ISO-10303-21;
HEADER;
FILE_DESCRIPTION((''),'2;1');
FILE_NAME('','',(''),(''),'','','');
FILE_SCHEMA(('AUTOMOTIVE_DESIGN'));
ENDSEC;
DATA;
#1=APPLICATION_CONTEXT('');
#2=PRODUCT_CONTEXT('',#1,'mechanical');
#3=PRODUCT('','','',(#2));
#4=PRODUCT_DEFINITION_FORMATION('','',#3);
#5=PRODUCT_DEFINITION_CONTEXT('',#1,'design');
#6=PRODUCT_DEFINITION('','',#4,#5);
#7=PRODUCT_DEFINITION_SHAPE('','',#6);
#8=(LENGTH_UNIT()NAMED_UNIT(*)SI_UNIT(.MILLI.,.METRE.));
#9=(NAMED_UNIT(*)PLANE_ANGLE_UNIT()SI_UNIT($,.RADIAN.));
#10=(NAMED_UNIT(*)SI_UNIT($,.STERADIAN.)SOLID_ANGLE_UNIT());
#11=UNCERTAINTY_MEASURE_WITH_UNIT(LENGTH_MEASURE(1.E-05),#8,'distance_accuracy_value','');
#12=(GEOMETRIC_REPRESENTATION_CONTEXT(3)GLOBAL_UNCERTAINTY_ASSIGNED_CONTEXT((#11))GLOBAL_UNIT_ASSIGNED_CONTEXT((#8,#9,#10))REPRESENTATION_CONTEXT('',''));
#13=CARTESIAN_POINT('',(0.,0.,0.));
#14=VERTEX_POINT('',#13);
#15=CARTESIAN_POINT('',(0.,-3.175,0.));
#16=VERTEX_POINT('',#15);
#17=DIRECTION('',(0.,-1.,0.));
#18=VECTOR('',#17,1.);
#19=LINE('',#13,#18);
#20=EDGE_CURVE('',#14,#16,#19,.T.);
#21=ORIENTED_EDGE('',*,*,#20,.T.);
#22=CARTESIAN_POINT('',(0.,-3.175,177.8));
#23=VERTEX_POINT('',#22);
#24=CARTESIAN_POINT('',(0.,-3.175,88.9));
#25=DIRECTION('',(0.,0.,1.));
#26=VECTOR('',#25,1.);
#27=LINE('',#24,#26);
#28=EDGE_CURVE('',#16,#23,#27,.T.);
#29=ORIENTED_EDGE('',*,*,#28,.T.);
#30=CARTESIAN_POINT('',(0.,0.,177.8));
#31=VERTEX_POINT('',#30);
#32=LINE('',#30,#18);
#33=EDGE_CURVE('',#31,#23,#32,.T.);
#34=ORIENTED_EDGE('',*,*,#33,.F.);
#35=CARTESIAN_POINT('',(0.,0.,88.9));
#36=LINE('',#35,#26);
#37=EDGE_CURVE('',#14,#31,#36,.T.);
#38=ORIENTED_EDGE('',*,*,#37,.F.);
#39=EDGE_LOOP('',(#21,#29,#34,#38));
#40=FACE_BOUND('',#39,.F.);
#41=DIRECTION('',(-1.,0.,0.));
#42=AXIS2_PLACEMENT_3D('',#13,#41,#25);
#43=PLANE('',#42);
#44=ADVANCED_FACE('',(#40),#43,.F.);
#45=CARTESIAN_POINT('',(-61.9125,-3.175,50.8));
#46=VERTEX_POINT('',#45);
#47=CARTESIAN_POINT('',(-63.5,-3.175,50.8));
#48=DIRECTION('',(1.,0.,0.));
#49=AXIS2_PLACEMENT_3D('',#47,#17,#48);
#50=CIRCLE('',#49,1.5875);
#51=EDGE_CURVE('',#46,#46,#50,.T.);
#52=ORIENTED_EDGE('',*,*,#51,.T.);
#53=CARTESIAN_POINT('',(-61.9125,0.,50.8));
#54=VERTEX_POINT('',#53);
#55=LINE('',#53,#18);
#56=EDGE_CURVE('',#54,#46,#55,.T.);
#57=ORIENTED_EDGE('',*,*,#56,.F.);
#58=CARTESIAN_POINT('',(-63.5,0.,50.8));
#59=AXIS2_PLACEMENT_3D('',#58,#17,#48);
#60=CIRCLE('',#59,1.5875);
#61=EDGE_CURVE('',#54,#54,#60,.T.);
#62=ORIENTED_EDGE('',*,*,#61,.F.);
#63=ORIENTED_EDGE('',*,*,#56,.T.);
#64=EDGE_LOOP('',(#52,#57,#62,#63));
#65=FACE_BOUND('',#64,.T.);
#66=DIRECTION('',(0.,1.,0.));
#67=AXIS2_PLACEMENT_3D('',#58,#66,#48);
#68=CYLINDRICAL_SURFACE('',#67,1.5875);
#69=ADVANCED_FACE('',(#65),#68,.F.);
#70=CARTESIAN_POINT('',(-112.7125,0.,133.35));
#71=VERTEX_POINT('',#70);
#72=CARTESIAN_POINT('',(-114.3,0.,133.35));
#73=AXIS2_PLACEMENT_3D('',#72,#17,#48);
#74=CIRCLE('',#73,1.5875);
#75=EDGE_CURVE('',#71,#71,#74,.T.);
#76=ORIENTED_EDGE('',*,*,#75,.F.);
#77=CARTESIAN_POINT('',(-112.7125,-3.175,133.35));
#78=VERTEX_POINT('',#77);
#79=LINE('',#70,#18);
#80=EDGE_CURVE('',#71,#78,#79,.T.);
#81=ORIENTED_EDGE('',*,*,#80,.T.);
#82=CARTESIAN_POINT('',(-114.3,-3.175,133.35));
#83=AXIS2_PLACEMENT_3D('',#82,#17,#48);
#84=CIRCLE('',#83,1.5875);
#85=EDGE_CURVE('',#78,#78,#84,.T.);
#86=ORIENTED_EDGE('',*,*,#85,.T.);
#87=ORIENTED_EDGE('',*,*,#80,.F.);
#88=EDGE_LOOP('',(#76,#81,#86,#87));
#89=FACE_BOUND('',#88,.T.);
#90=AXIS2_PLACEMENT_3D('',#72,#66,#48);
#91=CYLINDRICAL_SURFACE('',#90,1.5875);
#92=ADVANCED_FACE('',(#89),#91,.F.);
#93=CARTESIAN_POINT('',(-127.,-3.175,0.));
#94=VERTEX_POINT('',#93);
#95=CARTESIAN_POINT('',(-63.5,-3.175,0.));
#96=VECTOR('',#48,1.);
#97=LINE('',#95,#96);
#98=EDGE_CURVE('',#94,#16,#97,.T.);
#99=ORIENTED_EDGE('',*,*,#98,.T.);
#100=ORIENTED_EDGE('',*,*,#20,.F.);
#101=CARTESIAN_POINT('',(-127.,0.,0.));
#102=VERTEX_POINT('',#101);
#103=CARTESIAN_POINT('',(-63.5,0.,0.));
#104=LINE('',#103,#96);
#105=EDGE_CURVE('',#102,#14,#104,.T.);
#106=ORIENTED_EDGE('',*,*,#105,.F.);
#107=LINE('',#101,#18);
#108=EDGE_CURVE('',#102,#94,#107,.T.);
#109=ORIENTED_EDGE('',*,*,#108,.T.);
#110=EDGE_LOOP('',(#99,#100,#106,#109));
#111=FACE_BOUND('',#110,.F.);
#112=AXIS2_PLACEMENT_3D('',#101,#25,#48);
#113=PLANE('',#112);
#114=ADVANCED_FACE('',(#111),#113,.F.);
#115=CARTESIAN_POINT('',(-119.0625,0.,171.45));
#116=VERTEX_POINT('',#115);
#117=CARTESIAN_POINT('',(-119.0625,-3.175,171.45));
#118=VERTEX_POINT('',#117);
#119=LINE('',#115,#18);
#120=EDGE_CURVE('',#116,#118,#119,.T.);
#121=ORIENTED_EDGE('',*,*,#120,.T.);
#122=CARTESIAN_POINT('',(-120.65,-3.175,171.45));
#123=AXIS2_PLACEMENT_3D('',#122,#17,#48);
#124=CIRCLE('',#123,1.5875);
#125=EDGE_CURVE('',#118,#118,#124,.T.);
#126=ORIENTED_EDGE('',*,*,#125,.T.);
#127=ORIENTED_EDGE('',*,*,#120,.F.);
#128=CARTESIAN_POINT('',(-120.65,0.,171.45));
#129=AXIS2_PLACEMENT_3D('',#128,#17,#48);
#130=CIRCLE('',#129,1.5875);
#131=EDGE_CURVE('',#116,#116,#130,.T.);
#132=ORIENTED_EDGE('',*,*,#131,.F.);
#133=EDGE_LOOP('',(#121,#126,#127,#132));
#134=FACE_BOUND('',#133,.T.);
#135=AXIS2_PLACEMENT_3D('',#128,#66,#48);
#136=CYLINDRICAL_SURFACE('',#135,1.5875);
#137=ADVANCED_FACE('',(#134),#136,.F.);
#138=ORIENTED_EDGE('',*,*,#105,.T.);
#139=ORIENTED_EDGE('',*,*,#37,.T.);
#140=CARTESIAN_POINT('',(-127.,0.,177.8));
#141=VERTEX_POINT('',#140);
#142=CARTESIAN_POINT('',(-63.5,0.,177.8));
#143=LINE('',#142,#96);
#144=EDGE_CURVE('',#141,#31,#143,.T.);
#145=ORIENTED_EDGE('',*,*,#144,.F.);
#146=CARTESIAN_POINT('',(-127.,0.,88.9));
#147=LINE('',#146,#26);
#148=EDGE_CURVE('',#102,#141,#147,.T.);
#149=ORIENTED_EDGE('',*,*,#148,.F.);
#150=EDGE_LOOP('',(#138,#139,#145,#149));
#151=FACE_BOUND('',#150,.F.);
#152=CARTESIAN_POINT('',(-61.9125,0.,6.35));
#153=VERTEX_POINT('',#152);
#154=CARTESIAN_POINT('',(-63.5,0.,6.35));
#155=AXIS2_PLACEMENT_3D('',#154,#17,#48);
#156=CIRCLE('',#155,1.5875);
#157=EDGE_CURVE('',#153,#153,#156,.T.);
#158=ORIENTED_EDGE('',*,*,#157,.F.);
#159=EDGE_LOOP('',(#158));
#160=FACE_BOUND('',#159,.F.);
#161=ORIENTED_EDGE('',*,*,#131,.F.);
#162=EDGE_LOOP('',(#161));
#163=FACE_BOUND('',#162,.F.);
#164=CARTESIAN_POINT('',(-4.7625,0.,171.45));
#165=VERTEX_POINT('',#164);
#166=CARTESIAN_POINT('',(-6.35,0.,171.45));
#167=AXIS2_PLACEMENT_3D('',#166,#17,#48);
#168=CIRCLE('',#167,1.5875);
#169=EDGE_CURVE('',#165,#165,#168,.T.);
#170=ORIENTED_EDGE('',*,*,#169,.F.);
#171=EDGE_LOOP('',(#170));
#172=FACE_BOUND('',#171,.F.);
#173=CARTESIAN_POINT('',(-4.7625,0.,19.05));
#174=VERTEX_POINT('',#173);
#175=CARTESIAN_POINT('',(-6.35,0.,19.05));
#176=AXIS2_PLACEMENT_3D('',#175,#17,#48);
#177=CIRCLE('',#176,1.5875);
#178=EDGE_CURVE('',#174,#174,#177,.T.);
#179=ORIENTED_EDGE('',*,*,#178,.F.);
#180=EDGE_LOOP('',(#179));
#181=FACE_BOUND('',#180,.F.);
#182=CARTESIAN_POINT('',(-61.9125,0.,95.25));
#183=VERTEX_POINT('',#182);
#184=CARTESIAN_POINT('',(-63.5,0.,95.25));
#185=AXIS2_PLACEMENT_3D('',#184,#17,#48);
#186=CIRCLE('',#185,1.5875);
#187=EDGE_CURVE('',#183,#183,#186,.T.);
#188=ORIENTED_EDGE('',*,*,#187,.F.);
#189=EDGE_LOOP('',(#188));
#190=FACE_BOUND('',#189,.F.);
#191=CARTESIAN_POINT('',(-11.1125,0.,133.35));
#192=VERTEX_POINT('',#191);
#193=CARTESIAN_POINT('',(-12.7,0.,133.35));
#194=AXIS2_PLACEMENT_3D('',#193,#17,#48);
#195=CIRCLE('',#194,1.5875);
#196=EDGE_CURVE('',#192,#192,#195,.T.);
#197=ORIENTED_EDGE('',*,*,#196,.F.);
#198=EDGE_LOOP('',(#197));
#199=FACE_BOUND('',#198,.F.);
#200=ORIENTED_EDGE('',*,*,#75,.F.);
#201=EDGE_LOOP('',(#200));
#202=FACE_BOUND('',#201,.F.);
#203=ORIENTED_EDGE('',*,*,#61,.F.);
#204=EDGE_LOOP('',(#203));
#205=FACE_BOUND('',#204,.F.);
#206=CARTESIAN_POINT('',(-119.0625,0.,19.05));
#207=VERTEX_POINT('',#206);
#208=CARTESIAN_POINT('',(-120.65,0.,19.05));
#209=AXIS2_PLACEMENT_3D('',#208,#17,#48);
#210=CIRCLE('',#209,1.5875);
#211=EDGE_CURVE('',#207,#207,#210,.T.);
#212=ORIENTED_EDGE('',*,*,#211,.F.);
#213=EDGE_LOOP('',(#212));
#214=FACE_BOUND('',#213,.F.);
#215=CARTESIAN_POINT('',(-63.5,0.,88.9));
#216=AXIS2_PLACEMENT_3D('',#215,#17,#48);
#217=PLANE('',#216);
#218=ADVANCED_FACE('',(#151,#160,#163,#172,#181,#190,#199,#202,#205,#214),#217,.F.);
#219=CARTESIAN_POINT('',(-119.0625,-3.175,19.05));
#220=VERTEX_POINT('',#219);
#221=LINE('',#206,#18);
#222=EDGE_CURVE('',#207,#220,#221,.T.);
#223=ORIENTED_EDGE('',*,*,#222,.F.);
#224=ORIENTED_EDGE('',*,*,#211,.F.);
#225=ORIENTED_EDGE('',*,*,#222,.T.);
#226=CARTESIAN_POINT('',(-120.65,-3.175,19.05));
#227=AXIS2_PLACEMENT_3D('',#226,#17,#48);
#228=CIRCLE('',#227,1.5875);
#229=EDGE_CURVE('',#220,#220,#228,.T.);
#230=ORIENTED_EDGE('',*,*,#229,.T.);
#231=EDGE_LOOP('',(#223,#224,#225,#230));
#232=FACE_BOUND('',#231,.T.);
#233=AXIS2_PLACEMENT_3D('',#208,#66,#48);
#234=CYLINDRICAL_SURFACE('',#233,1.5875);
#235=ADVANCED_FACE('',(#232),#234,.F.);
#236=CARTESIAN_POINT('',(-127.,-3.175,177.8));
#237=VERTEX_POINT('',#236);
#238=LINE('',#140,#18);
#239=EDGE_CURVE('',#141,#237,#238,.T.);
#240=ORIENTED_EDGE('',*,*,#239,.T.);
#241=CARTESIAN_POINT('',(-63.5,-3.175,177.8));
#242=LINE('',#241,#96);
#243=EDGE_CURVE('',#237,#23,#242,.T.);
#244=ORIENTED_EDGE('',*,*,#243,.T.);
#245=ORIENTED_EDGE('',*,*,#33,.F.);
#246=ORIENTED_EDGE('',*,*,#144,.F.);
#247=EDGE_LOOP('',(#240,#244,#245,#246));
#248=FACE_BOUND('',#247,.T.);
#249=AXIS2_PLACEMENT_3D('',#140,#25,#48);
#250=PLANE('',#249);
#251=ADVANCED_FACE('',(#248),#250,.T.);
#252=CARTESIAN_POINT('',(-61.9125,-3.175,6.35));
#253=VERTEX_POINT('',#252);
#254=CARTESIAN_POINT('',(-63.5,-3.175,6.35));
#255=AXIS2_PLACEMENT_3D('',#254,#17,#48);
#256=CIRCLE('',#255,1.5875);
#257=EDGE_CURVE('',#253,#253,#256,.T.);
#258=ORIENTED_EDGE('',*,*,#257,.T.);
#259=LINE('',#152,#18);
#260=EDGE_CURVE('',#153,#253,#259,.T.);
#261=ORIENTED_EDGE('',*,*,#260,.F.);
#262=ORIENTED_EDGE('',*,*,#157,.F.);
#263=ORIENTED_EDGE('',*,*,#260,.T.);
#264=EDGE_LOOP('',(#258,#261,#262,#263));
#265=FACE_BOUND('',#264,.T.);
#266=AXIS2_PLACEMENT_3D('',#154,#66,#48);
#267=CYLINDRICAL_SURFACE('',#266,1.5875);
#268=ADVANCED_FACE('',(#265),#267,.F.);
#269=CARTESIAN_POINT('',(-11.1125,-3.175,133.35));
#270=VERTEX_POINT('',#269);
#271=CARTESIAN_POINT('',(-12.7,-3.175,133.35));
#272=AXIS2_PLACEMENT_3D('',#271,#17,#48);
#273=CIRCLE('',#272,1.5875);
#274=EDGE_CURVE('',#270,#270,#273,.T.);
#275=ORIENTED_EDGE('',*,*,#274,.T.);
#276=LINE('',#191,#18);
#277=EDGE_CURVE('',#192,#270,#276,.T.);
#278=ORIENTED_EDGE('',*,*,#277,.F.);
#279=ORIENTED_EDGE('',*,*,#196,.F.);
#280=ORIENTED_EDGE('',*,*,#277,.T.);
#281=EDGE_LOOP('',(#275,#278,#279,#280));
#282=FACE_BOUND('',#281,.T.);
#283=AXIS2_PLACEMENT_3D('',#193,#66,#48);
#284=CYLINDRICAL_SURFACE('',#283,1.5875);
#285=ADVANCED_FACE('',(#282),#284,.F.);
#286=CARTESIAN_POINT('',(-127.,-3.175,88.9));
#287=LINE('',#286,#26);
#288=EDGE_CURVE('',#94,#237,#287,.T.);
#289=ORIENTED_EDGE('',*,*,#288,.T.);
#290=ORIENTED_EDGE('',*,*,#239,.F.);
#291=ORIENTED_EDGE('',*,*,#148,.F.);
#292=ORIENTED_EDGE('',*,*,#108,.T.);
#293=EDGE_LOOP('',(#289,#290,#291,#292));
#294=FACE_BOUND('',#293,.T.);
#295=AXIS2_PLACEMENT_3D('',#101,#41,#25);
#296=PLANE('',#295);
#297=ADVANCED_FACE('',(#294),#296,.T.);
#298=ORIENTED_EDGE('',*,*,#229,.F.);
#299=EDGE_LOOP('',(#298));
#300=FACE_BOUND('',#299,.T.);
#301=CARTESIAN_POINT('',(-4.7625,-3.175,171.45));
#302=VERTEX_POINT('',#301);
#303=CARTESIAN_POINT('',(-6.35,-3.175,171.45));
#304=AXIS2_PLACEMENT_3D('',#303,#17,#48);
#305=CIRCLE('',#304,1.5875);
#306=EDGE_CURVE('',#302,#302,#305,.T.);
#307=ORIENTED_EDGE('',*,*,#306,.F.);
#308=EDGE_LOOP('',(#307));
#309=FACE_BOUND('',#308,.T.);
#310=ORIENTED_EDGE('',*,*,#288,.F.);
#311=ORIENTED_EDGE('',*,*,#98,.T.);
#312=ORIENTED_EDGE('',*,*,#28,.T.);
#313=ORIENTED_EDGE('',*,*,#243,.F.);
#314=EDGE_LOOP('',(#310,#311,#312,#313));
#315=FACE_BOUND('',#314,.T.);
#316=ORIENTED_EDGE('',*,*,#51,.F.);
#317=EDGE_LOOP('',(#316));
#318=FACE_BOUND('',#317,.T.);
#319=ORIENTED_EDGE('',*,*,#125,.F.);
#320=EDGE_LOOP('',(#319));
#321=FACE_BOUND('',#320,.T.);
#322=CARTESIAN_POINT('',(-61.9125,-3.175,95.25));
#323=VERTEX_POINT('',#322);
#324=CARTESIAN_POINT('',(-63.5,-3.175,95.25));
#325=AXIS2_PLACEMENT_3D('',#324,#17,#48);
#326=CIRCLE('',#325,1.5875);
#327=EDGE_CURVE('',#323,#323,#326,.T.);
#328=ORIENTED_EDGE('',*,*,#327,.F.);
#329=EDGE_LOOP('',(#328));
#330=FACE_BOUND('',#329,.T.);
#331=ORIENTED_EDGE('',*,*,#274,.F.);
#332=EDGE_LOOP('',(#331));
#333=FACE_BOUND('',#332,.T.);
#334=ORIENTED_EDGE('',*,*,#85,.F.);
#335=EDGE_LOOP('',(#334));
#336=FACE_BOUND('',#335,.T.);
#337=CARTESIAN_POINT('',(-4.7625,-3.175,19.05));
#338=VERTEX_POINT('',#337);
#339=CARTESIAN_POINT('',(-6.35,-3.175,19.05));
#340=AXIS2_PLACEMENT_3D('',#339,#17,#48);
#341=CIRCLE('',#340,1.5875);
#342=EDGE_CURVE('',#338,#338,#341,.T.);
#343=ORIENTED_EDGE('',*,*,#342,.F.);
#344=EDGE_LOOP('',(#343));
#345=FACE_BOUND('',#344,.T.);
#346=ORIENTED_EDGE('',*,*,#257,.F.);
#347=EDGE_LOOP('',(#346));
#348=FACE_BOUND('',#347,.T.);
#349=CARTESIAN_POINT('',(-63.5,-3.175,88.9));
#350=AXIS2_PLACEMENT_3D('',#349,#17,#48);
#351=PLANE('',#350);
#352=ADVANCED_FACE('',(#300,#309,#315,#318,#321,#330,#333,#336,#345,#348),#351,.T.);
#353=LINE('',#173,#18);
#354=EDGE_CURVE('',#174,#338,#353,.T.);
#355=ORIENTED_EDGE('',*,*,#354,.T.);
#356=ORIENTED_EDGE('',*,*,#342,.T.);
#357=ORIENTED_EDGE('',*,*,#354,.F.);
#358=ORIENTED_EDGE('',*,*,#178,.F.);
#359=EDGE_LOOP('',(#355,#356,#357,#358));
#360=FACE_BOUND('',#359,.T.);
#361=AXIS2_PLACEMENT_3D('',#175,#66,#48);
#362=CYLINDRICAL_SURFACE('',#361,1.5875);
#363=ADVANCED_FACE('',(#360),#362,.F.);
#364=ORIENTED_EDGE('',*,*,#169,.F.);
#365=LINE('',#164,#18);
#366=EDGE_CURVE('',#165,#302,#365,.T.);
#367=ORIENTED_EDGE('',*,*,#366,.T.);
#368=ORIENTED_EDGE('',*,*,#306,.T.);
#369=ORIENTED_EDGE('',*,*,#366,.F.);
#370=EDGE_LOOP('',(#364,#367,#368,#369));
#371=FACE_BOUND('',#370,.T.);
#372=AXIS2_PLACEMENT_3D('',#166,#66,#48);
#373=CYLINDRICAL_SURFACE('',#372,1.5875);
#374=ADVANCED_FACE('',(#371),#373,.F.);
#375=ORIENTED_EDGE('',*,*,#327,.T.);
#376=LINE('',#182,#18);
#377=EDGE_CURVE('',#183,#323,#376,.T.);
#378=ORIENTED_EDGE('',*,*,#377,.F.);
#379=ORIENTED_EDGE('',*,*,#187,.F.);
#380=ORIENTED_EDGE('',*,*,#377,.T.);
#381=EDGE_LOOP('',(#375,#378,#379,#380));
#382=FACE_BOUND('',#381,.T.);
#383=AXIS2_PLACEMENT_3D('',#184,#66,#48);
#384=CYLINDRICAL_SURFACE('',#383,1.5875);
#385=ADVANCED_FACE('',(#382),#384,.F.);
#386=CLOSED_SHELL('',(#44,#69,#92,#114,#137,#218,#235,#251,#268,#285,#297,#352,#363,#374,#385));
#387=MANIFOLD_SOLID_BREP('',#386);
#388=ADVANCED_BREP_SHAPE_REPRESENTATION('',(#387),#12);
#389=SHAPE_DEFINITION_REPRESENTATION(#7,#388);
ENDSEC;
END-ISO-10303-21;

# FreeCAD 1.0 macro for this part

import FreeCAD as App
import Part
import Sketcher
Q = App.Units.Quantity

doc = App.newDocument("Part")
body = doc.addObject("PartDesign::Body", "Body")

sketch1 = doc.addObject("Sketcher::SketchObject", "Sketch")
body.addObject(sketch1)
sketch1.AttachmentSupport = (doc.XZ_Plane, [""])
sketch1.MapMode = "FlatFace"
sketch1.addGeometry([
    Part.LineSegment(App.Vector(-127, 177.8, 0), App.Vector(-127, 0, 0)),
    Part.LineSegment(App.Vector(-127, 0, 0), App.Vector(0, 0, 0)),
    Part.LineSegment(App.Vector(0, 0, 0), App.Vector(0, 177.8, 0)),
    Part.LineSegment(App.Vector(0, 177.8, 0), App.Vector(-127, 177.8, 0)),
    Part.Circle(App.Vector(-120.7, 19.1, 0), App.Vector(0, 0, 1), 1.6),
    Part.Circle(App.Vector(-63.5, 6.3, 0), App.Vector(0, 0, 1), 1.6),
    Part.Circle(App.Vector(-6.3, 19.1, 0), App.Vector(0, 0, 1), 1.6),
    Part.Circle(App.Vector(-63.5, 50.8, 0), App.Vector(0, 0, 1), 1.6),
    Part.Circle(App.Vector(-114.3, 133.3, 0), App.Vector(0, 0, 1), 1.6),
    Part.Circle(App.Vector(-120.7, 171.4, 0), App.Vector(0, 0, 1), 1.6),
    Part.Circle(App.Vector(-63.5, 95.2, 0), App.Vector(0, 0, 1), 1.6),
    Part.Circle(App.Vector(-12.7, 133.3, 0), App.Vector(0, 0, 1), 1.6),
    Part.Circle(App.Vector(-6.3, 171.4, 0), App.Vector(0, 0, 1), 1.6),
], False)
sketch1.addConstraint([
    Sketcher.Constraint("Coincident", 0, 2, 1, 1),
    Sketcher.Constraint("Coincident", 1, 2, 2, 1),
    Sketcher.Constraint("Coincident", 2, 2, 3, 1),
    Sketcher.Constraint("Coincident", 3, 2, 0, 1),
    Sketcher.Constraint("Vertical", 0),
    Sketcher.Constraint("Horizontal", 1),
    Sketcher.Constraint("Vertical", 2),
    Sketcher.Constraint("Horizontal", 3),
    Sketcher.Constraint("Coincident", 1, 2, -1, 1),
    Sketcher.Constraint("Equal", 4, 5),
    Sketcher.Constraint("Equal", 5, 6),
    Sketcher.Constraint("Equal", 6, 7),
    Sketcher.Constraint("Equal", 7, 8),
    Sketcher.Constraint("Equal", 8, 9),
    Sketcher.Constraint("Equal", 9, 10),
    Sketcher.Constraint("Equal", 10, 11),
    Sketcher.Constraint("Equal", 11, 12),
    Sketcher.Constraint("Horizontal", 4, 3, 6, 3),
    Sketcher.Constraint("Horizontal", 8, 3, 11, 3),
    Sketcher.Constraint("Horizontal", 9, 3, 12, 3),
    Sketcher.Constraint("Vertical", 5, 3, 7, 3),
    Sketcher.Constraint("Vertical", 4, 3, 9, 3),
    Sketcher.Constraint("Vertical", 7, 3, 10, 3),
    Sketcher.Constraint("Vertical", 6, 3, 12, 3),
    Sketcher.Constraint("DistanceX", 1, 1, 1, 2, Q("5 in")),
    Sketcher.Constraint("DistanceY", 0, 2, 0, 1, Q("7 in")),
    Sketcher.Constraint("Diameter", 4, Q("0.125 in")),
    Sketcher.Constraint("DistanceY", -1, 1, 7, 3, Q("2 in")),
    Sketcher.Constraint("DistanceX", 8, 3, 7, 3, Q("2 in")),
    Sketcher.Constraint("DistanceY", 5, 3, 8, 3, Q("5 in")),
    Sketcher.Constraint("DistanceY", 4, 3, 9, 3, Q("6 in")),
    Sketcher.Constraint("DistanceY", 4, 3, 10, 3, Q("3 in")),
    Sketcher.Constraint("DistanceX", 10, 3, 11, 3, Q("2 in")),
    Sketcher.Constraint("DistanceX", 5, 3, -1, 1, Q("2.5 in")),
    Sketcher.Constraint("DistanceY", 5, 3, 4, 3, Q("0.5 in")),
    Sketcher.Constraint("DistanceX", 4, 3, 6, 3, Q("4.5 in")),
    Sketcher.Constraint("DistanceX", 4, 3, -1, 1, Q("4.75 in")),
    Sketcher.Constraint("DistanceY", -1, 1, 4, 3, Q("0.75 in")),
])
pad1 = doc.addObject("PartDesign::Pad", "Pad")
body.addObject(pad1)
pad1.Profile = sketch1
pad1.Length = Q("0.125 in")

doc.recompute()
